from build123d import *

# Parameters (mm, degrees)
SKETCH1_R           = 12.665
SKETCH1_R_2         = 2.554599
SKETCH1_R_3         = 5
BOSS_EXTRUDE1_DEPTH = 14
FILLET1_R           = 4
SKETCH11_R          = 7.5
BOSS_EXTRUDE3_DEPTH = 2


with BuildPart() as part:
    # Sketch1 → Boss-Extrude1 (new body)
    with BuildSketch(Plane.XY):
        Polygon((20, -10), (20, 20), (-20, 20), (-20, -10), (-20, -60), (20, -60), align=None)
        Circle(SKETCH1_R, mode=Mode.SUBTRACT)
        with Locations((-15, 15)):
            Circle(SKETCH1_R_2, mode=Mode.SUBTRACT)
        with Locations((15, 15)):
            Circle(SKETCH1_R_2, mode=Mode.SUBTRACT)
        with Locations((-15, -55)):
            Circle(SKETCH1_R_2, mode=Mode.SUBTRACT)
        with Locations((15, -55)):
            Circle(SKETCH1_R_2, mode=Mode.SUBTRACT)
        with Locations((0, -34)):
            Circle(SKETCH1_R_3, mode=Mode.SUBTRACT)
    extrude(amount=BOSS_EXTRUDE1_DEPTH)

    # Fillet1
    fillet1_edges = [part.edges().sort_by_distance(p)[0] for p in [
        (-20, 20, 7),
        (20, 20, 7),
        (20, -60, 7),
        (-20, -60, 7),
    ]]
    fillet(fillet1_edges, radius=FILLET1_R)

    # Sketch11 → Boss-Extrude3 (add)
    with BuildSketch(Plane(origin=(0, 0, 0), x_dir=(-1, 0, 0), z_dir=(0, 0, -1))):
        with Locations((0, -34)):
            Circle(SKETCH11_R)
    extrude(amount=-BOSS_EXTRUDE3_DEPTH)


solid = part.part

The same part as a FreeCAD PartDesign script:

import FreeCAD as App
import Part
import Sketcher


def edges_at(feature, points):
    """Names of the edges that pass closest to the given points."""
    edges = feature.Shape.Edges
    near = lambda p: min(range(len(edges)), key=lambda i: edges[i].distToShape(Part.Vertex(*p))[0])
    return sorted({f"Edge{near(p) + 1}" for p in points})


def add_polygon(sketch, points):
    """Adds a closed chain of lines whose ends are joined by coincident constraints."""
    first, n = sketch.GeometryCount, len(points)
    for a, b in zip(points, points[1:] + points[:1]):
        sketch.addGeometry(Part.LineSegment(App.Vector(*a, 0), App.Vector(*b, 0)), False)
    for i in range(n):
        sketch.addConstraint(Sketcher.Constraint("Coincident", first + i, 2, first + (i + 1) % n, 1))

doc = App.newDocument("Part")
params = doc.addObject("Spreadsheet::Sheet", "Params")
for row, (alias, value) in enumerate([
    ("sketch1_diameter", "10 mm"),
    ("sketch1_diameter2", "25.33 mm"),
    ("sketch1_width", "40 mm"),
    ("sketch1_height", "80 mm"),
    ("pad1_length", "14 mm"),
    ("fillet_radius", "4 mm"),
    ("sketch2_diameter", "15 mm"),
    ("pad2_length", "2 mm"),
], start=1):
    params.set(f"A{row}", alias)
    params.set(f"B{row}", "=" + value)
    params.setAlias(f"B{row}", alias)

body = doc.addObject("PartDesign::Body", "Body")

sketch1 = doc.addObject("Sketcher::SketchObject", "Sketch")
body.addObject(sketch1)
sketch1.AttachmentSupport = (doc.XY_Plane, [""])
sketch1.MapMode = "FlatFace"
add_polygon(sketch1, [(20, 20), (-20, 20), (-20, -60), (20, -60)])
sketch1.addGeometry(Part.Circle(App.Vector(-15, -55, 0), App.Vector(0, 0, 1), 2.6), False)
sketch1.addGeometry(Part.Circle(App.Vector(15, -55, 0), App.Vector(0, 0, 1), 2.6), False)
sketch1.addGeometry(Part.Circle(App.Vector(0, -34, 0), App.Vector(0, 0, 1), 5), False)
sketch1.addGeometry(Part.Circle(App.Vector(-15, 15, 0), App.Vector(0, 0, 1), 2.6), False)
sketch1.addGeometry(Part.Circle(App.Vector(0, 0, 0), App.Vector(0, 0, 1), 12.7), False)
sketch1.addGeometry(Part.Circle(App.Vector(15, 15, 0), App.Vector(0, 0, 1), 2.6), False)
sketch1.addConstraint(Sketcher.Constraint("Horizontal", 0))
sketch1.addConstraint(Sketcher.Constraint("Vertical", 1))
sketch1.addConstraint(Sketcher.Constraint("Horizontal", 2))
sketch1.addConstraint(Sketcher.Constraint("Vertical", 3))
sketch1.addConstraint(Sketcher.Constraint("Coincident", 8, 3, -1, 1))
sketch1.addConstraint(Sketcher.Constraint("Equal", 4, 5))
sketch1.addConstraint(Sketcher.Constraint("Equal", 5, 7))
sketch1.addConstraint(Sketcher.Constraint("Equal", 7, 9))
sketch1.addConstraint(Sketcher.Constraint("Symmetric", 4, 3, 5, 3, -2))
sketch1.addConstraint(Sketcher.Constraint("Symmetric", 7, 3, 9, 3, -2))
sketch1.addConstraint(Sketcher.Constraint("PointOnObject", 6, 3, -2))
sketch1.addConstraint(Sketcher.Constraint("Vertical", 4, 3, 7, 3))
sketch1.addConstraint(Sketcher.Constraint("Diameter", 6, 10.0))
sketch1.addConstraint(Sketcher.Constraint("Diameter", 8, 25.33))
sketch1.addConstraint(Sketcher.Constraint("DistanceX", 0, 2, 0, 1, 40.0))
sketch1.addConstraint(Sketcher.Constraint("DistanceY", 1, 2, 1, 1, 80.0))
sketch1.addConstraint(Sketcher.Constraint("DistanceX", 4, 3, -1, 1, 15.0))
sketch1.addConstraint(Sketcher.Constraint("DistanceY", 4, 3, -1, 1, 55.0))
sketch1.addConstraint(Sketcher.Constraint("DistanceY", 6, 3, -1, 1, 34.0))
sketch1.addConstraint(Sketcher.Constraint("DistanceY", -1, 1, 7, 3, 15.0))
sketch1.addConstraint(Sketcher.Constraint("DistanceX", 0, 2, -1, 1, 20.0))
sketch1.addConstraint(Sketcher.Constraint("DistanceY", -1, 1, 0, 2, 20.0))
sketch1.addConstraint(Sketcher.Constraint("Diameter", 4, 5.109198))
sketch1.setExpression("Constraints[16]", "Params.sketch1_diameter")
sketch1.setExpression("Constraints[17]", "Params.sketch1_diameter2")
sketch1.setExpression("Constraints[18]", "Params.sketch1_width")
sketch1.setExpression("Constraints[19]", "Params.sketch1_height")
pad1 = doc.addObject("PartDesign::Pad", "Pad")
body.addObject(pad1)
pad1.Profile = sketch1
pad1.setExpression("Length", "Params.pad1_length")
doc.recompute()

fillet = doc.addObject("PartDesign::Fillet", "Fillet")
body.addObject(fillet)
fillet.Base = (pad1, edges_at(pad1, [
    (-20, 20, 7),
    (20, 20, 7),
    (20, -60, 7),
    (-20, -60, 7),
]))
fillet.setExpression("Radius", "Params.fillet_radius")

sketch2 = doc.addObject("Sketcher::SketchObject", "Sketch001")
body.addObject(sketch2)
sketch2.AttachmentSupport = (doc.XY_Plane, [""])
sketch2.MapMode = "FlatFace"
sketch2.addGeometry(Part.Circle(App.Vector(0, -34, 0), App.Vector(0, 0, 1), 8), False)
sketch2.addConstraint(Sketcher.Constraint("PointOnObject", 0, 3, -2))
sketch2.addConstraint(Sketcher.Constraint("Diameter", 0, 15.0))
sketch2.addConstraint(Sketcher.Constraint("DistanceY", 0, 3, -1, 1, 34.0))
sketch2.setExpression("Constraints[1]", "Params.sketch2_diameter")
pad2 = doc.addObject("PartDesign::Pad", "Pad001")
body.addObject(pad2)
pad2.Profile = sketch2
pad2.setExpression("Length", "Params.pad2_length")

doc.recompute()
